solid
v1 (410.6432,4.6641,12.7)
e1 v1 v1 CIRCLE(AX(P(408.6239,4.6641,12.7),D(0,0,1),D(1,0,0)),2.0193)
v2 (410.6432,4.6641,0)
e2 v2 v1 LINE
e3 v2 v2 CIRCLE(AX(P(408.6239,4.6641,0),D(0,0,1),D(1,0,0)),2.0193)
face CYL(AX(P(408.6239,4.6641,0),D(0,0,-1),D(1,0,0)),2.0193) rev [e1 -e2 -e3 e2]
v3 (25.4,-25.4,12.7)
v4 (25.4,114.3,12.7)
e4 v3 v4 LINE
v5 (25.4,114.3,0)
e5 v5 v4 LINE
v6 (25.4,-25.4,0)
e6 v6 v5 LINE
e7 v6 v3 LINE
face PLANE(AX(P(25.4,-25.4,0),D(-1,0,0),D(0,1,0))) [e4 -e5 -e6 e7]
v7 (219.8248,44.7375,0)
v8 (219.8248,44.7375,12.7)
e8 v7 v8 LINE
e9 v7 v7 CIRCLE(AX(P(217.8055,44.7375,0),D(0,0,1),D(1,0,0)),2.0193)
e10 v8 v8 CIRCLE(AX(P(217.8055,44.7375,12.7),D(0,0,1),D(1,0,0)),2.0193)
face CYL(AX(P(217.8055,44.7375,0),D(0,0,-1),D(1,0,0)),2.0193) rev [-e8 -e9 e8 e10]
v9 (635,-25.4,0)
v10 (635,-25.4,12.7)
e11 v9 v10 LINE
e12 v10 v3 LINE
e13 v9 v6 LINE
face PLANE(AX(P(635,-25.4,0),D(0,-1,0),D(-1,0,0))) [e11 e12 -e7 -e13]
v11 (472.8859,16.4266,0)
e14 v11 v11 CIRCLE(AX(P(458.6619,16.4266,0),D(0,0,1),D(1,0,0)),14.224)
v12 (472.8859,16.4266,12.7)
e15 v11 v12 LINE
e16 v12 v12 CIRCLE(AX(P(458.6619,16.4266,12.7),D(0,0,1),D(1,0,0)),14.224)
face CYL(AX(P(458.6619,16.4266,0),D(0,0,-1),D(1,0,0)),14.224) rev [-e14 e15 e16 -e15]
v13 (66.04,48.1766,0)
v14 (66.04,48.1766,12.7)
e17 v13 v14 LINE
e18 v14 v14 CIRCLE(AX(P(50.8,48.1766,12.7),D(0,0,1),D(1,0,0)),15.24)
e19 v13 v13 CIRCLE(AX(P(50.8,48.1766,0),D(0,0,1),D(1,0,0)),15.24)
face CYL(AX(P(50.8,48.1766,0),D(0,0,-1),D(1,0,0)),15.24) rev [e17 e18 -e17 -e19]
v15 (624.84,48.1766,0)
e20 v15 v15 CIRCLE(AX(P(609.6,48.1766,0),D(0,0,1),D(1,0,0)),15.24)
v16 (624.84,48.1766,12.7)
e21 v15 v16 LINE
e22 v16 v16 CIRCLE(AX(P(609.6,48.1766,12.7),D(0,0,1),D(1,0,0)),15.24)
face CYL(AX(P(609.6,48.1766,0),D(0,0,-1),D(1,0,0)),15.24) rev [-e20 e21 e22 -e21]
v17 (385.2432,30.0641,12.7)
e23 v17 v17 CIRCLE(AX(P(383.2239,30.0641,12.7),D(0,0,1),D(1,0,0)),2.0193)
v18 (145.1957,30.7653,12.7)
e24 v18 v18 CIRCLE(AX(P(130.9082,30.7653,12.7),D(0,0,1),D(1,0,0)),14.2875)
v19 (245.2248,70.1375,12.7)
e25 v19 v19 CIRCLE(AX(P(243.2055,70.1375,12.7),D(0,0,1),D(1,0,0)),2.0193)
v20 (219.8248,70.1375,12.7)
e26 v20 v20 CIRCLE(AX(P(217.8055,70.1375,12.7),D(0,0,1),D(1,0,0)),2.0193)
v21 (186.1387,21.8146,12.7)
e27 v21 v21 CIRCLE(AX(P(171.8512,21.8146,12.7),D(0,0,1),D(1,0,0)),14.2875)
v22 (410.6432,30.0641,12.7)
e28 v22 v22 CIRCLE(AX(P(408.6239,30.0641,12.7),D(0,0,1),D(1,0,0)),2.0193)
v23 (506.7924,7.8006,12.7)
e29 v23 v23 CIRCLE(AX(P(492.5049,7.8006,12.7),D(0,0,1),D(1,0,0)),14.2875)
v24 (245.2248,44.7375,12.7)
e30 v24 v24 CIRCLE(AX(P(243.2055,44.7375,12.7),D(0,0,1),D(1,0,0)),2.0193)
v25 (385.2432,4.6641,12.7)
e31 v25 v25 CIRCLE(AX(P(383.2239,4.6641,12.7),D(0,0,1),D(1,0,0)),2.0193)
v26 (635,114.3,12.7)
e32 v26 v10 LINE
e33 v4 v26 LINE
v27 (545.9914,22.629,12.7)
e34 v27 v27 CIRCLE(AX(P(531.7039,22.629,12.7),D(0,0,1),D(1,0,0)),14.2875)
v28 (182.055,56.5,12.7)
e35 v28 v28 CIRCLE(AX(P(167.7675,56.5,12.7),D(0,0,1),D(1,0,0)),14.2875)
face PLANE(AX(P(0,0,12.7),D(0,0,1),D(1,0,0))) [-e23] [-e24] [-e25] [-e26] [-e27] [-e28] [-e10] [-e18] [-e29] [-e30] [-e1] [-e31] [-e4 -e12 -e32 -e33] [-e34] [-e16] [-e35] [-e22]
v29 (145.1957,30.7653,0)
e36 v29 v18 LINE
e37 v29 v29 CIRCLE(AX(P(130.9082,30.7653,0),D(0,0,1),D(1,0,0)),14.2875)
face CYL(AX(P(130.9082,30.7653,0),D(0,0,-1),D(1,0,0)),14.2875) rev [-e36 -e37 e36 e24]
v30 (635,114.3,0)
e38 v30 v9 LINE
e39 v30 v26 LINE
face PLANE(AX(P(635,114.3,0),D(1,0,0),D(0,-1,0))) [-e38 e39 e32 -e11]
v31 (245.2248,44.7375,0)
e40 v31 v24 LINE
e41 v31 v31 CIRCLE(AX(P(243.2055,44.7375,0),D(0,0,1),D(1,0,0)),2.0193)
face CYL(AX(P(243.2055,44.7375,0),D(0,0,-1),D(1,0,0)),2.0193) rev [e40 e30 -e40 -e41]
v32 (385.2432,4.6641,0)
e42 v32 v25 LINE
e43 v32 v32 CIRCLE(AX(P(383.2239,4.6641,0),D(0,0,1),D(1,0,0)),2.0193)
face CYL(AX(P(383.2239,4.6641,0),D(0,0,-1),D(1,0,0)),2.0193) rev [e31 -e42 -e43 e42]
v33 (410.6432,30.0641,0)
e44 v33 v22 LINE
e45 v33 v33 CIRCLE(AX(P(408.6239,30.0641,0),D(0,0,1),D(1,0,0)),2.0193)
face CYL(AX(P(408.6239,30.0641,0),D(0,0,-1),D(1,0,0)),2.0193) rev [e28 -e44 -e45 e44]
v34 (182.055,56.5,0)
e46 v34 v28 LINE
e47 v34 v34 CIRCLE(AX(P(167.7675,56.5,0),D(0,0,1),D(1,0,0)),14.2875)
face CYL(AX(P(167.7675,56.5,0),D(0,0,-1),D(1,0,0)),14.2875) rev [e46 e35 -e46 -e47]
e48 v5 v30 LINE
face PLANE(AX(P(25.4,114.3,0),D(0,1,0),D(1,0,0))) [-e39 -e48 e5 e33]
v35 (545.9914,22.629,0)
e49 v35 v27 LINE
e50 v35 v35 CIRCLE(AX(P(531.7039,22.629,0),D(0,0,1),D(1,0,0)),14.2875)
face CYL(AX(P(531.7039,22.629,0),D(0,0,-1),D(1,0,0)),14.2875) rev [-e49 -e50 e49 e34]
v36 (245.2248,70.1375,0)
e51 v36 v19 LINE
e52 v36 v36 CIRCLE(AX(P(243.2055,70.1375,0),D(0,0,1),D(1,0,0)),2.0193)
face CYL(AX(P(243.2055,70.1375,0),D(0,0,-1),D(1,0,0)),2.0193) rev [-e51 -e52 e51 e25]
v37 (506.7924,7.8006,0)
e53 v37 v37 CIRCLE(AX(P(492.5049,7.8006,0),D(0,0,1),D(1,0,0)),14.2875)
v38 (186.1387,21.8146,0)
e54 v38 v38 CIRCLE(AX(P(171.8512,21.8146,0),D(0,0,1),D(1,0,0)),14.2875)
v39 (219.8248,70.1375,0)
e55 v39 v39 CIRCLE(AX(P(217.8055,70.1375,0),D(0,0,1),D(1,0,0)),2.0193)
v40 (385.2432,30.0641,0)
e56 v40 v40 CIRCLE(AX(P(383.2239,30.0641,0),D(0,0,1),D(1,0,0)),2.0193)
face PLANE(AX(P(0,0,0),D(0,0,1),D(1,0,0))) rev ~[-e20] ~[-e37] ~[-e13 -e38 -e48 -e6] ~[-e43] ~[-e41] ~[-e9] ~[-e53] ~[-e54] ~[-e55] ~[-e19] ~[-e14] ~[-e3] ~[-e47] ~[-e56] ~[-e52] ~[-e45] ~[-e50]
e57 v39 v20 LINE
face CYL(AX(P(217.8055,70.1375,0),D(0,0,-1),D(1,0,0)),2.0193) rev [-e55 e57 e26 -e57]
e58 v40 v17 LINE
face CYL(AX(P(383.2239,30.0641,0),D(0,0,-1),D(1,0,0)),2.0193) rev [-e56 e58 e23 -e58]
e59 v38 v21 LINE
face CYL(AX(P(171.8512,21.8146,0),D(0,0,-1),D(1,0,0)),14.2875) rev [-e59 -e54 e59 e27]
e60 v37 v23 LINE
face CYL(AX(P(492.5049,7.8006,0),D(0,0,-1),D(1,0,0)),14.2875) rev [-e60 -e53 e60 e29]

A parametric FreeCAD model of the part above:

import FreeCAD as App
import Part
import Sketcher

V = App.Vector
Q = App.Units.Quantity


def add_polygon(sketch, points):
    """Adds a closed chain of lines whose ends are joined by coincident constraints."""
    first, n = sketch.GeometryCount, len(points)
    for a, b in zip(points, points[1:] + points[:1]):
        sketch.addGeometry(Part.LineSegment(App.Vector(*a, 0), App.Vector(*b, 0)), False)
    for i in range(n):
        sketch.addConstraint(Sketcher.Constraint("Coincident", first + i, 2, first + (i + 1) % n, 1))

doc = App.newDocument("Part")
body = doc.addObject("PartDesign::Body", "Body")

# Sketch on XY plane
sketch1 = doc.addObject("Sketcher::SketchObject", "Sketch")
body.addObject(sketch1)
sketch1.AttachmentSupport = (doc.XY_Plane, [""])
sketch1.MapMode = "FlatFace"
add_polygon(sketch1, [(635, 114.3), (25.4, 114.3), (25.4, -25.4), (635, -25.4)])  # lines 0-3
sketch1.addGeometry(Part.Circle(V(171.9, 21.8, 0), V(0, 0, 1), 14.3), False)  # 4
sketch1.addGeometry(Part.Circle(V(130.9, 30.8, 0), V(0, 0, 1), 14.3), False)  # 5
sketch1.addGeometry(Part.Circle(V(383.2, 4.7, 0), V(0, 0, 1), 2), False)  # 6
sketch1.addGeometry(Part.Circle(V(408.6, 4.7, 0), V(0, 0, 1), 2), False)  # 7
sketch1.addGeometry(Part.Circle(V(492.5, 7.8, 0), V(0, 0, 1), 14.3), False)  # 8
sketch1.addGeometry(Part.Circle(V(458.7, 16.4, 0), V(0, 0, 1), 14.2), False)  # 9
sketch1.addGeometry(Part.Circle(V(383.2, 30.1, 0), V(0, 0, 1), 2), False)  # 10
sketch1.addGeometry(Part.Circle(V(408.6, 30.1, 0), V(0, 0, 1), 2), False)  # 11
sketch1.addGeometry(Part.Circle(V(531.7, 22.6, 0), V(0, 0, 1), 14.3), False)  # 12
sketch1.addGeometry(Part.Circle(V(50.8, 48.2, 0), V(0, 0, 1), 15.2), False)  # 13
sketch1.addGeometry(Part.Circle(V(167.8, 56.5, 0), V(0, 0, 1), 14.3), False)  # 14
sketch1.addGeometry(Part.Circle(V(217.8, 44.7, 0), V(0, 0, 1), 2), False)  # 15
sketch1.addGeometry(Part.Circle(V(243.2, 44.7, 0), V(0, 0, 1), 2), False)  # 16
sketch1.addGeometry(Part.Circle(V(217.8, 70.1, 0), V(0, 0, 1), 2), False)  # 17
sketch1.addGeometry(Part.Circle(V(243.2, 70.1, 0), V(0, 0, 1), 2), False)  # 18
sketch1.addGeometry(Part.Circle(V(609.6, 48.2, 0), V(0, 0, 1), 15.2), False)  # 19
sketch1.addConstraint([
    Sketcher.Constraint("Horizontal", 0),
    Sketcher.Constraint("Vertical", 1),
    Sketcher.Constraint("Horizontal", 2),
    Sketcher.Constraint("Vertical", 3),
    Sketcher.Constraint("Equal", 4, 5),
    Sketcher.Constraint("Equal", 6, 7),
    Sketcher.Constraint("Equal", 5, 8),
    Sketcher.Constraint("Equal", 7, 10),
    Sketcher.Constraint("Equal", 10, 11),
    Sketcher.Constraint("Equal", 8, 12),
    Sketcher.Constraint("Equal", 12, 14),
    Sketcher.Constraint("Equal", 11, 15),
    Sketcher.Constraint("Equal", 15, 16),
    Sketcher.Constraint("Equal", 16, 17),
    Sketcher.Constraint("Equal", 17, 18),
    Sketcher.Constraint("Equal", 13, 19),
    Sketcher.Constraint("Horizontal", 6, 3, 7, 3),
    Sketcher.Constraint("Horizontal", 10, 3, 11, 3),
    Sketcher.Constraint("Horizontal", 15, 3, 16, 3),
    Sketcher.Constraint("Horizontal", 17, 3, 18, 3),
    Sketcher.Constraint("Horizontal", 13, 3, 19, 3),
    Sketcher.Constraint("Vertical", 6, 3, 10, 3),
    Sketcher.Constraint("Vertical", 7, 3, 11, 3),
    Sketcher.Constraint("Vertical", 15, 3, 17, 3),
    Sketcher.Constraint("Vertical", 16, 3, 18, 3),
    Sketcher.Constraint("DistanceY", 1, 2, 1, 1, Q("5.5 in")),
    Sketcher.Constraint("DistanceX", -1, 1, 0, 2, Q("1 in")),
    Sketcher.Constraint("DistanceY", 1, 2, -1, 1, Q("1 in")),
    Sketcher.Constraint("DistanceX", 6, 3, 7, 3, Q("1 in")),
    Sketcher.Constraint("DistanceY", 6, 3, 10, 3, Q("1 in")),
    Sketcher.Constraint("DistanceX", 15, 3, 16, 3, Q("1 in")),
    Sketcher.Constraint("DistanceY", 15, 3, 17, 3, Q("1 in")),
    Sketcher.Constraint("DistanceX", 0, 2, 13, 3, Q("1 in")),
    Sketcher.Constraint("DistanceX", 19, 3, 2, 2, Q("1 in")),
    Sketcher.Constraint("Diameter", 13, Q("1.2 in")),
    Sketcher.Constraint("Diameter", 9, Q("1.12 in")),
    Sketcher.Constraint("DistanceX", 0, 2, 0, 1, Q("24 in")),
    Sketcher.Constraint("Diameter", 4, Q("1.125 in")),
    Sketcher.Constraint("Diameter", 6, Q("0.159 in")),
    Sketcher.Constraint("DistanceX", 7, 3, 9, 3, Q("1.97 in")),
    Sketcher.Constraint("DistanceX", 14, 3, 15, 3, Q("1.97 in")),
    Sketcher.Constraint("DistanceY", 9, 3, 19, 3, Q("1.25 in")),
    Sketcher.Constraint("DistanceX", -1, 1, 4, 3, Q("6.7658 in")),
    Sketcher.Constraint("DistanceY", -1, 1, 8, 3, Q("0.3071 in")),
    Sketcher.Constraint("DistanceY", -1, 1, 12, 3, Q("0.8909 in")),
    Sketcher.Constraint("DistanceY", -1, 1, 14, 3, Q("2.2244 in")),
    Sketcher.Constraint("DistanceY", 4, 3, 5, 3, Q("0.3524 in")),
    Sketcher.Constraint("DistanceX", 5, 3, 6, 3, Q("9.9337 in")),
    Sketcher.Constraint("DistanceY", 6, 3, 5, 3, Q("1.0276 in")),
    Sketcher.Constraint("DistanceX", 7, 3, 8, 3, Q("3.3024 in")),
    Sketcher.Constraint("DistanceY", 8, 3, 9, 3, Q("0.3396 in")),
    Sketcher.Constraint("DistanceY", 7, 3, 9, 3, Q("0.4631 in")),
    Sketcher.Constraint("DistanceY", 15, 3, 14, 3, Q("0.4631 in")),
    Sketcher.Constraint("DistanceX", -1, 1, 5, 3, 130.9082),
    Sketcher.Constraint("DistanceX", -1, 1, 12, 3, 531.704),
    Sketcher.Constraint("DistanceX", -1, 1, 14, 3, 167.7675),
])
pad1 = doc.addObject("PartDesign::Pad", "Pad")
body.addObject(pad1)
pad1.Profile = sketch1
pad1.Length = Q("0.5 in")

doc.recompute()
